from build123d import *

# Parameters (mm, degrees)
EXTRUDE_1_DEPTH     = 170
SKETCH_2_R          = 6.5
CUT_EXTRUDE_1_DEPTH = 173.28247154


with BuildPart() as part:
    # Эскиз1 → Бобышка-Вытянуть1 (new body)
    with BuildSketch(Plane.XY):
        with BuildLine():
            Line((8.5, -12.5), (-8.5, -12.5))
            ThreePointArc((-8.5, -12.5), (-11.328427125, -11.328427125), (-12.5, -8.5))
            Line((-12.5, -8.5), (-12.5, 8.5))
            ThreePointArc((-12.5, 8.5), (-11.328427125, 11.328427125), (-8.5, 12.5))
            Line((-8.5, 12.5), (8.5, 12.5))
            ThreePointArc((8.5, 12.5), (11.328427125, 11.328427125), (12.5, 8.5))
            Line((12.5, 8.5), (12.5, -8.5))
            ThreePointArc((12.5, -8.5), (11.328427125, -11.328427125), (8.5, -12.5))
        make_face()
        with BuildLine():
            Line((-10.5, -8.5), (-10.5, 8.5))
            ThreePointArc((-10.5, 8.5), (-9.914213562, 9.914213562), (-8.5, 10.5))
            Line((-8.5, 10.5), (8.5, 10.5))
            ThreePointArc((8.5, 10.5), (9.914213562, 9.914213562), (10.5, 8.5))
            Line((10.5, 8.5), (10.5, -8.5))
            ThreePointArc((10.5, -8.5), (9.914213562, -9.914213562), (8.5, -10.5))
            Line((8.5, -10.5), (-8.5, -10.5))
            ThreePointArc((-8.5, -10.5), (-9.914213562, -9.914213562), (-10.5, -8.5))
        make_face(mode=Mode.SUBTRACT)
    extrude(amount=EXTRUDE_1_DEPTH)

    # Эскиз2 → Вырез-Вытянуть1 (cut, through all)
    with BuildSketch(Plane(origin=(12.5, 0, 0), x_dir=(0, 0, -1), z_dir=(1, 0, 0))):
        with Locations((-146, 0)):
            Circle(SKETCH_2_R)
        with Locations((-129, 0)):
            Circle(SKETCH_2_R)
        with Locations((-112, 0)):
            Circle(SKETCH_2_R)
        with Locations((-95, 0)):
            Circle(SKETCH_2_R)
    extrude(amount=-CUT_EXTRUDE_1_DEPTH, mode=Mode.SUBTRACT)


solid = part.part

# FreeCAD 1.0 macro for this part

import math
import FreeCAD as App
import Part
import Sketcher

V = App.Vector
Q = App.Units.Quantity

doc = App.newDocument("Part")
params = doc.addObject("Spreadsheet::Sheet", "Params")
for row, (alias, value) in enumerate([
    ("sketch1_radius", "4 mm"),
    ("sketch1_radius2", "2 mm"),
    ("sketch1_width", "17 mm"),
    ("pad1_length", "170 mm"),
    ("sketch2_diameter", "13 mm"),
], start=1):
    params.set(f"A{row}", alias)
    params.set(f"B{row}", "=" + value)
    params.setAlias(f"B{row}", alias)

body = doc.addObject("PartDesign::Body", "Body")

# Sketch on XY plane
sketch1 = doc.addObject("Sketcher::SketchObject", "Sketch")
body.addObject(sketch1)
sketch1.AttachmentSupport = (doc.XY_Plane, [""])
sketch1.MapMode = "FlatFace"
sketch1.addGeometry(Part.LineSegment(V(-8.5, -12.5, 0), V(8.5, -12.5, 0)), False)
sketch1.addGeometry(Part.ArcOfCircle(Part.Circle(V(8.5, -8.5, 0), V(0, 0, 1), 4), math.radians(-90), math.radians(0)), False)
sketch1.addGeometry(Part.LineSegment(V(12.5, -8.5, 0), V(12.5, 8.5, 0)), False)
sketch1.addGeometry(Part.ArcOfCircle(Part.Circle(V(8.5, 8.5, 0), V(0, 0, 1), 4), math.radians(0), math.radians(90)), False)
sketch1.addGeometry(Part.LineSegment(V(8.5, 12.5, 0), V(-8.5, 12.5, 0)), False)
sketch1.addGeometry(Part.ArcOfCircle(Part.Circle(V(-8.5, 8.5, 0), V(0, 0, 1), 4), math.radians(90), math.radians(180)), False)
sketch1.addGeometry(Part.LineSegment(V(-12.5, 8.5, 0), V(-12.5, -8.5, 0)), False)
sketch1.addGeometry(Part.ArcOfCircle(Part.Circle(V(-8.5, -8.5, 0), V(0, 0, 1), 4), math.radians(180), math.radians(270)), False)
sketch1.addGeometry(Part.LineSegment(V(-10.5, -8.5, 0), V(-10.5, 8.5, 0)), False)
sketch1.addGeometry(Part.ArcOfCircle(Part.Circle(V(-8.5, 8.5, 0), V(0, 0, 1), 2), math.radians(90), math.radians(180)), False)
sketch1.addGeometry(Part.LineSegment(V(-8.5, 10.5, 0), V(8.5, 10.5, 0)), False)
sketch1.addGeometry(Part.ArcOfCircle(Part.Circle(V(8.5, 8.5, 0), V(0, 0, 1), 2), math.radians(0), math.radians(90)), False)
sketch1.addGeometry(Part.LineSegment(V(10.5, 8.5, 0), V(10.5, -8.5, 0)), False)
sketch1.addGeometry(Part.ArcOfCircle(Part.Circle(V(8.5, -8.5, 0), V(0, 0, 1), 2), math.radians(-90), math.radians(0)), False)
sketch1.addGeometry(Part.LineSegment(V(8.5, -10.5, 0), V(-8.5, -10.5, 0)), False)
sketch1.addGeometry(Part.ArcOfCircle(Part.Circle(V(-8.5, -8.5, 0), V(0, 0, 1), 2), math.radians(-180), math.radians(-90)), False)
sketch1.addConstraint(Sketcher.Constraint("Tangent", 0, 2, 1, 1))
sketch1.addConstraint(Sketcher.Constraint("Tangent", 1, 2, 2, 1))
sketch1.addConstraint(Sketcher.Constraint("Tangent", 2, 2, 3, 1))
sketch1.addConstraint(Sketcher.Constraint("Tangent", 3, 2, 4, 1))
sketch1.addConstraint(Sketcher.Constraint("Tangent", 4, 2, 5, 1))
sketch1.addConstraint(Sketcher.Constraint("Tangent", 5, 2, 6, 1))
sketch1.addConstraint(Sketcher.Constraint("Tangent", 6, 2, 7, 1))
sketch1.addConstraint(Sketcher.Constraint("Tangent", 7, 2, 0, 1))
sketch1.addConstraint(Sketcher.Constraint("Tangent", 8, 2, 9, 2))
sketch1.addConstraint(Sketcher.Constraint("Tangent", 9, 1, 10, 1))
sketch1.addConstraint(Sketcher.Constraint("Tangent", 10, 2, 11, 2))
sketch1.addConstraint(Sketcher.Constraint("Tangent", 11, 1, 12, 1))
sketch1.addConstraint(Sketcher.Constraint("Tangent", 12, 2, 13, 2))
sketch1.addConstraint(Sketcher.Constraint("Tangent", 13, 1, 14, 1))
sketch1.addConstraint(Sketcher.Constraint("Tangent", 14, 2, 15, 2))
sketch1.addConstraint(Sketcher.Constraint("Tangent", 15, 1, 8, 1))
sketch1.addConstraint(Sketcher.Constraint("Horizontal", 0))
sketch1.addConstraint(Sketcher.Constraint("Vertical", 2))
sketch1.addConstraint(Sketcher.Constraint("Horizontal", 4))
sketch1.addConstraint(Sketcher.Constraint("Vertical", 6))
sketch1.addConstraint(Sketcher.Constraint("Vertical", 8))
sketch1.addConstraint(Sketcher.Constraint("Horizontal", 10))
sketch1.addConstraint(Sketcher.Constraint("Vertical", 12))
sketch1.addConstraint(Sketcher.Constraint("Horizontal", 14))
sketch1.addConstraint(Sketcher.Constraint("Coincident", 9, 3, 5, 3))
sketch1.addConstraint(Sketcher.Constraint("Coincident", 11, 3, 3, 3))
sketch1.addConstraint(Sketcher.Constraint("Coincident", 13, 3, 1, 3))
sketch1.addConstraint(Sketcher.Constraint("Equal", 1, 3))
sketch1.addConstraint(Sketcher.Constraint("Equal", 3, 5))
sketch1.addConstraint(Sketcher.Constraint("Equal", 5, 7))
sketch1.addConstraint(Sketcher.Constraint("Equal", 13, 15))
sketch1.addConstraint(Sketcher.Constraint("Symmetric", 1, 3, 5, 3, -1, 1))
sketch1.addConstraint(Sketcher.Constraint("Equal", 14, 2))
sketch1.addConstraint(Sketcher.Constraint("Radius", 1, Q("4 mm")))
sketch1.addConstraint(Sketcher.Constraint("Radius", 9, Q("2 mm")))
sketch1.addConstraint(Sketcher.Constraint("DistanceX", 0, 1, 0, 2, Q("17 mm")))
sketch1.setExpression("Constraints[33]", "Params.sketch1_radius")
sketch1.setExpression("Constraints[34]", "Params.sketch1_radius2")
sketch1.setExpression("Constraints[35]", "Params.sketch1_width")
pad1 = doc.addObject("PartDesign::Pad", "Pad")
body.addObject(pad1)
pad1.Profile = sketch1
pad1.setExpression("Length", "Params.pad1_length")

# Sketch on YZ plane
sketch2 = doc.addObject("Sketcher::SketchObject", "Sketch001")
body.addObject(sketch2)
sketch2.AttachmentSupport = (doc.YZ_Plane, [""])
sketch2.MapMode = "FlatFace"
sketch2.AttachmentOffset = App.Placement(V(0, 0, 12.5), App.Rotation())
sketch2.addGeometry(Part.Circle(V(0, 146, 0), V(0, 0, 1), 6), False)
sketch2.addGeometry(Part.Circle(V(0, 129, 0), V(0, 0, 1), 6), False)
sketch2.addGeometry(Part.Circle(V(0, 112, 0), V(0, 0, 1), 6), False)
sketch2.addGeometry(Part.Circle(V(0, 95, 0), V(0, 0, 1), 6), False)
sketch2.addConstraint(Sketcher.Constraint("Equal", 0, 1))
sketch2.addConstraint(Sketcher.Constraint("Equal", 1, 2))
sketch2.addConstraint(Sketcher.Constraint("Equal", 2, 3))
sketch2.addConstraint(Sketcher.Constraint("PointOnObject", 0, 3, -2))
sketch2.addConstraint(Sketcher.Constraint("PointOnObject", 1, 3, -2))
sketch2.addConstraint(Sketcher.Constraint("PointOnObject", 2, 3, -2))
sketch2.addConstraint(Sketcher.Constraint("PointOnObject", 3, 3, -2))
sketch2.addConstraint(Sketcher.Constraint("Diameter", 0, Q("13 mm")))
sketch2.addConstraint(Sketcher.Constraint("DistanceY", -1, 1, 0, 3, Q("146 mm")))
sketch2.addConstraint(Sketcher.Constraint("DistanceY", -1, 1, 1, 3, Q("129 mm")))
sketch2.addConstraint(Sketcher.Constraint("DistanceY", -1, 1, 2, 3, Q("112 mm")))
sketch2.addConstraint(Sketcher.Constraint("DistanceY", -1, 1, 3, 3, Q("95 mm")))
sketch2.setExpression("Constraints[7]", "Params.sketch2_diameter")
pocket1 = doc.addObject("PartDesign::Pocket", "Pocket")
body.addObject(pocket1)
pocket1.Profile = sketch2
pocket1.Type = "ThroughAll"

doc.recompute()
